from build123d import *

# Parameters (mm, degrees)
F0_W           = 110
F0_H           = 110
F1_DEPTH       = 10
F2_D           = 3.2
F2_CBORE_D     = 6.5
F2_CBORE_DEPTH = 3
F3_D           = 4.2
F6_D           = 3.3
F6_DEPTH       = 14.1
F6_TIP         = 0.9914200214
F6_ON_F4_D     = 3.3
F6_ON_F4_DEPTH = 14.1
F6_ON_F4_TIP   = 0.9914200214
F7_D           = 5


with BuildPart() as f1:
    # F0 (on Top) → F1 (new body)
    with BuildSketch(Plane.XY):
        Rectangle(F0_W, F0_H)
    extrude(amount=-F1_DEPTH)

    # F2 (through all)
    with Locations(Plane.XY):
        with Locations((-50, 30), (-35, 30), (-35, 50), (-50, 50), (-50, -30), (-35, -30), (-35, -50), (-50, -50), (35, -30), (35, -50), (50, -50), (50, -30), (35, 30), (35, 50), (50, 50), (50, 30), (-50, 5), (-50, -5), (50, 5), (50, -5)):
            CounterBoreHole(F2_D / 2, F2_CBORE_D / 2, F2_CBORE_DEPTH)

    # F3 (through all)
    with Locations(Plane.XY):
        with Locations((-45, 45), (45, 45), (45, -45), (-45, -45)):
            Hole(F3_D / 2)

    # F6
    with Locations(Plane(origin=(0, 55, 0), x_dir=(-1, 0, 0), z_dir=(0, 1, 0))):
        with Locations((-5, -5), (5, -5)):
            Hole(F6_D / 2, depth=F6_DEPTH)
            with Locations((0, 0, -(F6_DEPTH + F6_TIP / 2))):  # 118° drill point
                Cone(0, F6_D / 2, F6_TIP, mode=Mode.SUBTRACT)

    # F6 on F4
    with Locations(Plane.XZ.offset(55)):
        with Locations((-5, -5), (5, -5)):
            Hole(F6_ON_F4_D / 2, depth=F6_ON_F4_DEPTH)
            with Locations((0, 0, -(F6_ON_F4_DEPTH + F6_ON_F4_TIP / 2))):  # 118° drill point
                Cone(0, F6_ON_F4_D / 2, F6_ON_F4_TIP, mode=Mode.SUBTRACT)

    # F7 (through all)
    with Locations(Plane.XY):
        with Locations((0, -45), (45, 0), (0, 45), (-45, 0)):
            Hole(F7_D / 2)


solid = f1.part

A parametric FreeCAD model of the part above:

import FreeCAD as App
import Part
import Sketcher

doc = App.newDocument("Part")
body = doc.addObject("PartDesign::Body", "Body")

# Sketch on XY plane
sketch1 = body.newObject("Sketcher::SketchObject", "Sketch")
sketch1.AttachmentSupport = (doc.getObject("XY_Plane"), [""])
sketch1.MapMode = "FlatFace"
sketch1.addGeometry(Part.LineSegment(App.Vector(-55, 55, 0), App.Vector(-55, -55, 0)), False)
sketch1.addGeometry(Part.LineSegment(App.Vector(-55, -55, 0), App.Vector(55, -55, 0)), False)
sketch1.addGeometry(Part.LineSegment(App.Vector(55, -55, 0), App.Vector(55, 55, 0)), False)
sketch1.addGeometry(Part.LineSegment(App.Vector(55, 55, 0), App.Vector(-55, 55, 0)), False)
sketch1.addConstraint(Sketcher.Constraint("Coincident", 0, 2, 1, 1))
sketch1.addConstraint(Sketcher.Constraint("Coincident", 1, 2, 2, 1))
sketch1.addConstraint(Sketcher.Constraint("Coincident", 2, 2, 3, 1))
sketch1.addConstraint(Sketcher.Constraint("Coincident", 3, 2, 0, 1))
sketch1.addConstraint(Sketcher.Constraint("Vertical", 0))
sketch1.addConstraint(Sketcher.Constraint("Horizontal", 1))
sketch1.addConstraint(Sketcher.Constraint("Vertical", 2))
sketch1.addConstraint(Sketcher.Constraint("Horizontal", 3))
sketch1.addConstraint(Sketcher.Constraint("Symmetric", 0, 2, 2, 2, -1, 1))
sketch1.addConstraint(Sketcher.Constraint("Equal", 3, 0))
sketch1.addConstraint(Sketcher.Constraint("DistanceX", 1, 1, 1, 2, 110.0))
pad1 = body.newObject("PartDesign::Pad", "Pad")
pad1.Profile = sketch1
pad1.Length = 10
pad1.Reversed = True

# Sketch on XY plane
sketch2 = body.newObject("Sketcher::SketchObject", "Sketch001")
sketch2.AttachmentSupport = (doc.getObject("XY_Plane"), [""])
sketch2.MapMode = "FlatFace"
sketch2.addGeometry(Part.Circle(App.Vector(-50, 30, 0), App.Vector(0, 0, 1), 1.6), False)
sketch2.addGeometry(Part.Circle(App.Vector(-35, 30, 0), App.Vector(0, 0, 1), 1.6), False)
sketch2.addGeometry(Part.Circle(App.Vector(-35, 50, 0), App.Vector(0, 0, 1), 1.6), False)
sketch2.addGeometry(Part.Circle(App.Vector(-50, 50, 0), App.Vector(0, 0, 1), 1.6), False)
sketch2.addGeometry(Part.Circle(App.Vector(-50, -30, 0), App.Vector(0, 0, 1), 1.6), False)
sketch2.addGeometry(Part.Circle(App.Vector(-35, -30, 0), App.Vector(0, 0, 1), 1.6), False)
sketch2.addGeometry(Part.Circle(App.Vector(-35, -50, 0), App.Vector(0, 0, 1), 1.6), False)
sketch2.addGeometry(Part.Circle(App.Vector(-50, -50, 0), App.Vector(0, 0, 1), 1.6), False)
sketch2.addGeometry(Part.Circle(App.Vector(35, -30, 0), App.Vector(0, 0, 1), 1.6), False)
sketch2.addGeometry(Part.Circle(App.Vector(35, -50, 0), App.Vector(0, 0, 1), 1.6), False)
sketch2.addGeometry(Part.Circle(App.Vector(50, -50, 0), App.Vector(0, 0, 1), 1.6), False)
sketch2.addGeometry(Part.Circle(App.Vector(50, -30, 0), App.Vector(0, 0, 1), 1.6), False)
sketch2.addGeometry(Part.Circle(App.Vector(35, 30, 0), App.Vector(0, 0, 1), 1.6), False)
sketch2.addGeometry(Part.Circle(App.Vector(35, 50, 0), App.Vector(0, 0, 1), 1.6), False)
sketch2.addGeometry(Part.Circle(App.Vector(50, 50, 0), App.Vector(0, 0, 1), 1.6), False)
sketch2.addGeometry(Part.Circle(App.Vector(50, 30, 0), App.Vector(0, 0, 1), 1.6), False)
sketch2.addGeometry(Part.Circle(App.Vector(-50, 5, 0), App.Vector(0, 0, 1), 1.6), False)
sketch2.addGeometry(Part.Circle(App.Vector(-50, -5, 0), App.Vector(0, 0, 1), 1.6), False)
sketch2.addGeometry(Part.Circle(App.Vector(50, 5, 0), App.Vector(0, 0, 1), 1.6), False)
sketch2.addGeometry(Part.Circle(App.Vector(50, -5, 0), App.Vector(0, 0, 1), 1.6), False)
sketch2.addConstraint(Sketcher.Constraint("Equal", 0, 1))
sketch2.addConstraint(Sketcher.Constraint("Equal", 1, 2))
sketch2.addConstraint(Sketcher.Constraint("Equal", 2, 3))
sketch2.addConstraint(Sketcher.Constraint("Equal", 3, 4))
sketch2.addConstraint(Sketcher.Constraint("Equal", 4, 5))
sketch2.addConstraint(Sketcher.Constraint("Equal", 5, 6))
sketch2.addConstraint(Sketcher.Constraint("Equal", 6, 7))
sketch2.addConstraint(Sketcher.Constraint("Equal", 7, 8))
sketch2.addConstraint(Sketcher.Constraint("Equal", 8, 9))
sketch2.addConstraint(Sketcher.Constraint("Equal", 9, 10))
sketch2.addConstraint(Sketcher.Constraint("Equal", 10, 11))
sketch2.addConstraint(Sketcher.Constraint("Equal", 11, 12))
sketch2.addConstraint(Sketcher.Constraint("Equal", 12, 13))
sketch2.addConstraint(Sketcher.Constraint("Equal", 13, 14))
sketch2.addConstraint(Sketcher.Constraint("Equal", 14, 15))
sketch2.addConstraint(Sketcher.Constraint("Equal", 15, 16))
sketch2.addConstraint(Sketcher.Constraint("Equal", 16, 17))
sketch2.addConstraint(Sketcher.Constraint("Equal", 17, 18))
sketch2.addConstraint(Sketcher.Constraint("Equal", 18, 19))
sketch2.addConstraint(Sketcher.Constraint("Symmetric", 1, 3, 8, 3, -1, 1))
sketch2.addConstraint(Sketcher.Constraint("Symmetric", 2, 3, 9, 3, -1, 1))
sketch2.addConstraint(Sketcher.Constraint("Symmetric", 3, 3, 10, 3, -1, 1))
sketch2.addConstraint(Sketcher.Constraint("Symmetric", 0, 3, 11, 3, -1, 1))
sketch2.addConstraint(Sketcher.Constraint("Symmetric", 5, 3, 12, 3, -1, 1))
sketch2.addConstraint(Sketcher.Constraint("Symmetric", 6, 3, 13, 3, -1, 1))
sketch2.addConstraint(Sketcher.Constraint("Symmetric", 7, 3, 14, 3, -1, 1))
sketch2.addConstraint(Sketcher.Constraint("Symmetric", 4, 3, 15, 3, -1, 1))
sketch2.addConstraint(Sketcher.Constraint("Symmetric", 17, 3, 18, 3, -1, 1))
sketch2.addConstraint(Sketcher.Constraint("Symmetric", 16, 3, 19, 3, -1, 1))
sketch2.addConstraint(Sketcher.Constraint("Symmetric", 5, 3, 8, 3, -2))
sketch2.addConstraint(Sketcher.Constraint("Symmetric", 6, 3, 9, 3, -2))
sketch2.addConstraint(Sketcher.Constraint("Symmetric", 7, 3, 10, 3, -2))
sketch2.addConstraint(Sketcher.Constraint("Symmetric", 4, 3, 11, 3, -2))
sketch2.addConstraint(Sketcher.Constraint("Symmetric", 16, 3, 18, 3, -2))
sketch2.addConstraint(Sketcher.Constraint("Horizontal", 0, 3, 1, 3))
sketch2.addConstraint(Sketcher.Constraint("Horizontal", 2, 3, 3, 3))
sketch2.addConstraint(Sketcher.Constraint("Vertical", 1, 3, 2, 3))
sketch2.addConstraint(Sketcher.Constraint("Vertical", 0, 3, 3, 3))
sketch2.addConstraint(Sketcher.Constraint("Vertical", 7, 3, 16, 3))
sketch2.addConstraint(Sketcher.Constraint("Diameter", 0, 3.2))
sketch2.addConstraint(Sketcher.Constraint("DistanceX", 0, 3, -1, 1, 50.0))
sketch2.addConstraint(Sketcher.Constraint("DistanceY", -1, 1, 0, 3, 30.0))
sketch2.addConstraint(Sketcher.Constraint("DistanceX", 1, 3, -1, 1, 35.0))
sketch2.addConstraint(Sketcher.Constraint("DistanceY", -1, 1, 2, 3, 50.0))
sketch2.addConstraint(Sketcher.Constraint("DistanceY", -1, 1, 16, 3, 5.0))
doc.recompute()
hole = body.newObject("PartDesign::Hole", "Hole")
hole.Profile = sketch2
hole.ThreadType = "None"
hole.Diameter = 3.2
hole.DepthType = "ThroughAll"
hole.HoleCutType = "Counterbore"
hole.HoleCutDiameter = 6.5
hole.HoleCutDepth = 3

# Sketch on XY plane
sketch3 = body.newObject("Sketcher::SketchObject", "Sketch002")
sketch3.AttachmentSupport = (doc.getObject("XY_Plane"), [""])
sketch3.MapMode = "FlatFace"
sketch3.addGeometry(Part.Circle(App.Vector(-45, 45, 0), App.Vector(0, 0, 1), 2.1), False)
sketch3.addGeometry(Part.Circle(App.Vector(45, 45, 0), App.Vector(0, 0, 1), 2.1), False)
sketch3.addGeometry(Part.Circle(App.Vector(45, -45, 0), App.Vector(0, 0, 1), 2.1), False)
sketch3.addGeometry(Part.Circle(App.Vector(-45, -45, 0), App.Vector(0, 0, 1), 2.1), False)
sketch3.addConstraint(Sketcher.Constraint("Equal", 0, 1))
sketch3.addConstraint(Sketcher.Constraint("Equal", 1, 2))
sketch3.addConstraint(Sketcher.Constraint("Equal", 2, 3))
sketch3.addConstraint(Sketcher.Constraint("Symmetric", 0, 3, 2, 3, -1, 1))
sketch3.addConstraint(Sketcher.Constraint("Symmetric", 1, 3, 3, 3, -1, 1))
sketch3.addConstraint(Sketcher.Constraint("Symmetric", 0, 3, 1, 3, -2))
sketch3.addConstraint(Sketcher.Constraint("Diameter", 0, 4.2))
sketch3.addConstraint(Sketcher.Constraint("DistanceX", 0, 3, -1, 1, 45.0))
sketch3.addConstraint(Sketcher.Constraint("DistanceY", -1, 1, 0, 3, 45.0))
doc.recompute()
hole2 = body.newObject("PartDesign::Hole", "Hole001")
hole2.Profile = sketch3
hole2.ThreadType = "None"
hole2.Diameter = 4.2
hole2.DepthType = "ThroughAll"

# Sketch on XZ plane
sketch4 = body.newObject("Sketcher::SketchObject", "Sketch003")
sketch4.AttachmentSupport = (doc.getObject("XZ_Plane"), [""])
sketch4.MapMode = "FlatFace"
sketch4.AttachmentOffset = App.Placement(App.Vector(0, 0, -55), App.Rotation())
sketch4.addGeometry(Part.Circle(App.Vector(5, -5, 0), App.Vector(0, 0, 1), 1.6), False)
sketch4.addGeometry(Part.Circle(App.Vector(-5, -5, 0), App.Vector(0, 0, 1), 1.6), False)
sketch4.addConstraint(Sketcher.Constraint("Equal", 0, 1))
sketch4.addConstraint(Sketcher.Constraint("Symmetric", 0, 3, 1, 3, -2))
sketch4.addConstraint(Sketcher.Constraint("Diameter", 0, 3.3))
sketch4.addConstraint(Sketcher.Constraint("DistanceX", -1, 1, 0, 3, 5.0))
sketch4.addConstraint(Sketcher.Constraint("DistanceY", 0, 3, -1, 1, 5.0))
doc.recompute()
hole3 = body.newObject("PartDesign::Hole", "Hole002")
hole3.Profile = sketch4
hole3.ThreadType = "None"
hole3.Diameter = 3.3
hole3.DepthType = "Dimension"
hole3.Depth = 14.1
hole3.DrillPoint = "Angled"
hole3.DrillPointAngle = 118
hole3.Reversed = True

# Sketch on XZ plane
sketch5 = body.newObject("Sketcher::SketchObject", "Sketch004")
sketch5.AttachmentSupport = (doc.getObject("XZ_Plane"), [""])
sketch5.MapMode = "FlatFace"
sketch5.AttachmentOffset = App.Placement(App.Vector(0, 0, 55), App.Rotation())
sketch5.addGeometry(Part.Circle(App.Vector(-5, -5, 0), App.Vector(0, 0, 1), 1.6), False)
sketch5.addGeometry(Part.Circle(App.Vector(5, -5, 0), App.Vector(0, 0, 1), 1.6), False)
sketch5.addConstraint(Sketcher.Constraint("Equal", 0, 1))
sketch5.addConstraint(Sketcher.Constraint("Symmetric", 0, 3, 1, 3, -2))
sketch5.addConstraint(Sketcher.Constraint("Diameter", 0, 3.3))
sketch5.addConstraint(Sketcher.Constraint("DistanceX", 0, 3, -1, 1, 5.0))
sketch5.addConstraint(Sketcher.Constraint("DistanceY", 0, 3, -1, 1, 5.0))
doc.recompute()
hole4 = body.newObject("PartDesign::Hole", "Hole003")
hole4.Profile = sketch5
hole4.ThreadType = "None"
hole4.Diameter = 3.3
hole4.DepthType = "Dimension"
hole4.Depth = 14.1
hole4.DrillPoint = "Angled"
hole4.DrillPointAngle = 118

# Sketch on XY plane
sketch6 = body.newObject("Sketcher::SketchObject", "Sketch005")
sketch6.AttachmentSupport = (doc.getObject("XY_Plane"), [""])
sketch6.MapMode = "FlatFace"
sketch6.addGeometry(Part.Circle(App.Vector(0, -45, 0), App.Vector(0, 0, 1), 2.5), False)
sketch6.addGeometry(Part.Circle(App.Vector(45, 0, 0), App.Vector(0, 0, 1), 2.5), False)
sketch6.addGeometry(Part.Circle(App.Vector(0, 45, 0), App.Vector(0, 0, 1), 2.5), False)
sketch6.addGeometry(Part.Circle(App.Vector(-45, 0, 0), App.Vector(0, 0, 1), 2.5), False)
sketch6.addConstraint(Sketcher.Constraint("Equal", 0, 1))
sketch6.addConstraint(Sketcher.Constraint("Equal", 1, 2))
sketch6.addConstraint(Sketcher.Constraint("Equal", 2, 3))
sketch6.addConstraint(Sketcher.Constraint("Symmetric", 0, 3, 2, 3, -1, 1))
sketch6.addConstraint(Sketcher.Constraint("Symmetric", 1, 3, 3, 3, -1, 1))
sketch6.addConstraint(Sketcher.Constraint("PointOnObject", 0, 3, -2))
sketch6.addConstraint(Sketcher.Constraint("PointOnObject", 1, 3, -1))
sketch6.addConstraint(Sketcher.Constraint("Diameter", 0, 5.0))
sketch6.addConstraint(Sketcher.Constraint("DistanceY", 0, 3, -1, 1, 45.0))
sketch6.addConstraint(Sketcher.Constraint("DistanceX", -1, 1, 1, 3, 45.0))
doc.recompute()
hole5 = body.newObject("PartDesign::Hole", "Hole004")
hole5.Profile = sketch6
hole5.ThreadType = "None"
hole5.Diameter = 5
hole5.DepthType = "ThroughAll"

doc.recompute()
